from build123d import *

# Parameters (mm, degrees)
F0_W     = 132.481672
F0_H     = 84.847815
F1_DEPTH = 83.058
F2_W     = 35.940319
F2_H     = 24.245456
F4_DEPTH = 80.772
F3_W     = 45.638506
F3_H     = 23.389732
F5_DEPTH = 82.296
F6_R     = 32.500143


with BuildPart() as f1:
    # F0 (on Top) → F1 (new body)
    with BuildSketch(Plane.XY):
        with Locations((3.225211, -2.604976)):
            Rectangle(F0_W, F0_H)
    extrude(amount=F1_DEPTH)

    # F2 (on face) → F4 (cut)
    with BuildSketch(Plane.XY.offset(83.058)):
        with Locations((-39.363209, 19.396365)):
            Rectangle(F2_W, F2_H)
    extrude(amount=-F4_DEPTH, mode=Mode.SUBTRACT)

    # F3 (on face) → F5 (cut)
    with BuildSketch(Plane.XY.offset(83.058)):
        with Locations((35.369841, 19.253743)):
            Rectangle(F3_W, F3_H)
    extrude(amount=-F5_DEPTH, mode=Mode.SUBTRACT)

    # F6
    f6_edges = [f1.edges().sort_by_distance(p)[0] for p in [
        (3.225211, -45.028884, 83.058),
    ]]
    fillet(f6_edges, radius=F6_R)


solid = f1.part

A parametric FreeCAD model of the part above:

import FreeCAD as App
import Part
import Sketcher
Q = App.Units.Quantity


def edges_at(feature, points):
    """Names of the edges that pass closest to the given points."""
    edges = feature.Shape.Edges
    near = lambda p: min(range(len(edges)), key=lambda i: edges[i].distToShape(Part.Vertex(*p))[0])
    return sorted({f"Edge{near(p) + 1}" for p in points})

doc = App.newDocument("Part")
body = doc.addObject("PartDesign::Body", "Body")

# Sketch on XY plane
sketch1 = body.newObject("Sketcher::SketchObject", "Sketch")
sketch1.AttachmentSupport = (doc.getObject("XY_Plane"), [""])
sketch1.MapMode = "FlatFace"
sketch1.addGeometry([
    Part.LineSegment(App.Vector(-63, 40, 0), App.Vector(-63, -45, 0)),
    Part.LineSegment(App.Vector(-63, -45, 0), App.Vector(69, -45, 0)),
    Part.LineSegment(App.Vector(69, -45, 0), App.Vector(69, 40, 0)),
    Part.LineSegment(App.Vector(69, 40, 0), App.Vector(-63, 40, 0)),
], False)
sketch1.addConstraint([
    Sketcher.Constraint("Coincident", 0, 2, 1, 1),
    Sketcher.Constraint("Coincident", 1, 2, 2, 1),
    Sketcher.Constraint("Coincident", 2, 2, 3, 1),
    Sketcher.Constraint("Coincident", 3, 2, 0, 1),
    Sketcher.Constraint("Vertical", 0),
    Sketcher.Constraint("Horizontal", 1),
    Sketcher.Constraint("Vertical", 2),
    Sketcher.Constraint("Horizontal", 3),
    Sketcher.Constraint("DistanceX", 1, 1, 1, 2, 132.481672),
    Sketcher.Constraint("DistanceY", 0, 2, 0, 1, 84.847815),
    Sketcher.Constraint("DistanceY", -1, 1, 2, 2, 39.818931),
    Sketcher.Constraint("DistanceX", 0, 2, -1, 1, 63.015625),
])
pad1 = body.newObject("PartDesign::Pad", "Pad")
pad1.Profile = sketch1
pad1.Length = Q("3.27 in")

# Sketch on XY plane
sketch2 = body.newObject("Sketcher::SketchObject", "Sketch001")
sketch2.AttachmentSupport = (doc.getObject("XY_Plane"), [""])
sketch2.MapMode = "FlatFace"
sketch2.AttachmentOffset = App.Placement(App.Vector(0, 0, 3.27 * 25.4), App.Rotation())
sketch2.addGeometry([
    Part.LineSegment(App.Vector(-57, 32, 0), App.Vector(-57, 7, 0)),
    Part.LineSegment(App.Vector(-57, 7, 0), App.Vector(-21, 7, 0)),
    Part.LineSegment(App.Vector(-21, 7, 0), App.Vector(-21, 32, 0)),
    Part.LineSegment(App.Vector(-21, 32, 0), App.Vector(-57, 32, 0)),
], False)
sketch2.addConstraint([
    Sketcher.Constraint("Coincident", 0, 2, 1, 1),
    Sketcher.Constraint("Coincident", 1, 2, 2, 1),
    Sketcher.Constraint("Coincident", 2, 2, 3, 1),
    Sketcher.Constraint("Coincident", 3, 2, 0, 1),
    Sketcher.Constraint("Vertical", 0),
    Sketcher.Constraint("Horizontal", 1),
    Sketcher.Constraint("Vertical", 2),
    Sketcher.Constraint("Horizontal", 3),
    Sketcher.Constraint("DistanceX", 1, 1, 1, 2, 35.940319),
    Sketcher.Constraint("DistanceY", 0, 2, 0, 1, 24.245456),
    Sketcher.Constraint("DistanceX", 0, 2, -1, 1, 57.333368),
    Sketcher.Constraint("DistanceY", -1, 1, 0, 2, 7.273637),
])
pocket1 = body.newObject("PartDesign::Pocket", "Pocket")
pocket1.Profile = sketch2
pocket1.Length = Q("3.18 in")

# Sketch on XY plane
sketch3 = body.newObject("Sketcher::SketchObject", "Sketch002")
sketch3.AttachmentSupport = (doc.getObject("XY_Plane"), [""])
sketch3.MapMode = "FlatFace"
sketch3.AttachmentOffset = App.Placement(App.Vector(0, 0, 3.27 * 25.4), App.Rotation())
sketch3.addGeometry([
    Part.LineSegment(App.Vector(13, 31, 0), App.Vector(13, 8, 0)),
    Part.LineSegment(App.Vector(13, 8, 0), App.Vector(58, 8, 0)),
    Part.LineSegment(App.Vector(58, 8, 0), App.Vector(58, 31, 0)),
    Part.LineSegment(App.Vector(58, 31, 0), App.Vector(13, 31, 0)),
], False)
sketch3.addConstraint([
    Sketcher.Constraint("Coincident", 0, 2, 1, 1),
    Sketcher.Constraint("Coincident", 1, 2, 2, 1),
    Sketcher.Constraint("Coincident", 2, 2, 3, 1),
    Sketcher.Constraint("Coincident", 3, 2, 0, 1),
    Sketcher.Constraint("Vertical", 0),
    Sketcher.Constraint("Horizontal", 1),
    Sketcher.Constraint("Vertical", 2),
    Sketcher.Constraint("Horizontal", 3),
    Sketcher.Constraint("DistanceX", 1, 1, 1, 2, 45.638506),
    Sketcher.Constraint("DistanceY", 0, 2, 0, 1, 23.389732),
    Sketcher.Constraint("DistanceY", -1, 1, 2, 2, 30.948609),
    Sketcher.Constraint("DistanceX", -1, 1, 0, 2, 12.550588),
])
pocket2 = body.newObject("PartDesign::Pocket", "Pocket001")
pocket2.Profile = sketch3
pocket2.Length = Q("3.24 in")
doc.recompute()

fillet = body.newObject("PartDesign::Fillet", "Fillet")
fillet.Base = (pocket2, edges_at(pocket2, [(3.225, -45.029, 83.058)]))
fillet.Radius = 32.500143

doc.recompute()
